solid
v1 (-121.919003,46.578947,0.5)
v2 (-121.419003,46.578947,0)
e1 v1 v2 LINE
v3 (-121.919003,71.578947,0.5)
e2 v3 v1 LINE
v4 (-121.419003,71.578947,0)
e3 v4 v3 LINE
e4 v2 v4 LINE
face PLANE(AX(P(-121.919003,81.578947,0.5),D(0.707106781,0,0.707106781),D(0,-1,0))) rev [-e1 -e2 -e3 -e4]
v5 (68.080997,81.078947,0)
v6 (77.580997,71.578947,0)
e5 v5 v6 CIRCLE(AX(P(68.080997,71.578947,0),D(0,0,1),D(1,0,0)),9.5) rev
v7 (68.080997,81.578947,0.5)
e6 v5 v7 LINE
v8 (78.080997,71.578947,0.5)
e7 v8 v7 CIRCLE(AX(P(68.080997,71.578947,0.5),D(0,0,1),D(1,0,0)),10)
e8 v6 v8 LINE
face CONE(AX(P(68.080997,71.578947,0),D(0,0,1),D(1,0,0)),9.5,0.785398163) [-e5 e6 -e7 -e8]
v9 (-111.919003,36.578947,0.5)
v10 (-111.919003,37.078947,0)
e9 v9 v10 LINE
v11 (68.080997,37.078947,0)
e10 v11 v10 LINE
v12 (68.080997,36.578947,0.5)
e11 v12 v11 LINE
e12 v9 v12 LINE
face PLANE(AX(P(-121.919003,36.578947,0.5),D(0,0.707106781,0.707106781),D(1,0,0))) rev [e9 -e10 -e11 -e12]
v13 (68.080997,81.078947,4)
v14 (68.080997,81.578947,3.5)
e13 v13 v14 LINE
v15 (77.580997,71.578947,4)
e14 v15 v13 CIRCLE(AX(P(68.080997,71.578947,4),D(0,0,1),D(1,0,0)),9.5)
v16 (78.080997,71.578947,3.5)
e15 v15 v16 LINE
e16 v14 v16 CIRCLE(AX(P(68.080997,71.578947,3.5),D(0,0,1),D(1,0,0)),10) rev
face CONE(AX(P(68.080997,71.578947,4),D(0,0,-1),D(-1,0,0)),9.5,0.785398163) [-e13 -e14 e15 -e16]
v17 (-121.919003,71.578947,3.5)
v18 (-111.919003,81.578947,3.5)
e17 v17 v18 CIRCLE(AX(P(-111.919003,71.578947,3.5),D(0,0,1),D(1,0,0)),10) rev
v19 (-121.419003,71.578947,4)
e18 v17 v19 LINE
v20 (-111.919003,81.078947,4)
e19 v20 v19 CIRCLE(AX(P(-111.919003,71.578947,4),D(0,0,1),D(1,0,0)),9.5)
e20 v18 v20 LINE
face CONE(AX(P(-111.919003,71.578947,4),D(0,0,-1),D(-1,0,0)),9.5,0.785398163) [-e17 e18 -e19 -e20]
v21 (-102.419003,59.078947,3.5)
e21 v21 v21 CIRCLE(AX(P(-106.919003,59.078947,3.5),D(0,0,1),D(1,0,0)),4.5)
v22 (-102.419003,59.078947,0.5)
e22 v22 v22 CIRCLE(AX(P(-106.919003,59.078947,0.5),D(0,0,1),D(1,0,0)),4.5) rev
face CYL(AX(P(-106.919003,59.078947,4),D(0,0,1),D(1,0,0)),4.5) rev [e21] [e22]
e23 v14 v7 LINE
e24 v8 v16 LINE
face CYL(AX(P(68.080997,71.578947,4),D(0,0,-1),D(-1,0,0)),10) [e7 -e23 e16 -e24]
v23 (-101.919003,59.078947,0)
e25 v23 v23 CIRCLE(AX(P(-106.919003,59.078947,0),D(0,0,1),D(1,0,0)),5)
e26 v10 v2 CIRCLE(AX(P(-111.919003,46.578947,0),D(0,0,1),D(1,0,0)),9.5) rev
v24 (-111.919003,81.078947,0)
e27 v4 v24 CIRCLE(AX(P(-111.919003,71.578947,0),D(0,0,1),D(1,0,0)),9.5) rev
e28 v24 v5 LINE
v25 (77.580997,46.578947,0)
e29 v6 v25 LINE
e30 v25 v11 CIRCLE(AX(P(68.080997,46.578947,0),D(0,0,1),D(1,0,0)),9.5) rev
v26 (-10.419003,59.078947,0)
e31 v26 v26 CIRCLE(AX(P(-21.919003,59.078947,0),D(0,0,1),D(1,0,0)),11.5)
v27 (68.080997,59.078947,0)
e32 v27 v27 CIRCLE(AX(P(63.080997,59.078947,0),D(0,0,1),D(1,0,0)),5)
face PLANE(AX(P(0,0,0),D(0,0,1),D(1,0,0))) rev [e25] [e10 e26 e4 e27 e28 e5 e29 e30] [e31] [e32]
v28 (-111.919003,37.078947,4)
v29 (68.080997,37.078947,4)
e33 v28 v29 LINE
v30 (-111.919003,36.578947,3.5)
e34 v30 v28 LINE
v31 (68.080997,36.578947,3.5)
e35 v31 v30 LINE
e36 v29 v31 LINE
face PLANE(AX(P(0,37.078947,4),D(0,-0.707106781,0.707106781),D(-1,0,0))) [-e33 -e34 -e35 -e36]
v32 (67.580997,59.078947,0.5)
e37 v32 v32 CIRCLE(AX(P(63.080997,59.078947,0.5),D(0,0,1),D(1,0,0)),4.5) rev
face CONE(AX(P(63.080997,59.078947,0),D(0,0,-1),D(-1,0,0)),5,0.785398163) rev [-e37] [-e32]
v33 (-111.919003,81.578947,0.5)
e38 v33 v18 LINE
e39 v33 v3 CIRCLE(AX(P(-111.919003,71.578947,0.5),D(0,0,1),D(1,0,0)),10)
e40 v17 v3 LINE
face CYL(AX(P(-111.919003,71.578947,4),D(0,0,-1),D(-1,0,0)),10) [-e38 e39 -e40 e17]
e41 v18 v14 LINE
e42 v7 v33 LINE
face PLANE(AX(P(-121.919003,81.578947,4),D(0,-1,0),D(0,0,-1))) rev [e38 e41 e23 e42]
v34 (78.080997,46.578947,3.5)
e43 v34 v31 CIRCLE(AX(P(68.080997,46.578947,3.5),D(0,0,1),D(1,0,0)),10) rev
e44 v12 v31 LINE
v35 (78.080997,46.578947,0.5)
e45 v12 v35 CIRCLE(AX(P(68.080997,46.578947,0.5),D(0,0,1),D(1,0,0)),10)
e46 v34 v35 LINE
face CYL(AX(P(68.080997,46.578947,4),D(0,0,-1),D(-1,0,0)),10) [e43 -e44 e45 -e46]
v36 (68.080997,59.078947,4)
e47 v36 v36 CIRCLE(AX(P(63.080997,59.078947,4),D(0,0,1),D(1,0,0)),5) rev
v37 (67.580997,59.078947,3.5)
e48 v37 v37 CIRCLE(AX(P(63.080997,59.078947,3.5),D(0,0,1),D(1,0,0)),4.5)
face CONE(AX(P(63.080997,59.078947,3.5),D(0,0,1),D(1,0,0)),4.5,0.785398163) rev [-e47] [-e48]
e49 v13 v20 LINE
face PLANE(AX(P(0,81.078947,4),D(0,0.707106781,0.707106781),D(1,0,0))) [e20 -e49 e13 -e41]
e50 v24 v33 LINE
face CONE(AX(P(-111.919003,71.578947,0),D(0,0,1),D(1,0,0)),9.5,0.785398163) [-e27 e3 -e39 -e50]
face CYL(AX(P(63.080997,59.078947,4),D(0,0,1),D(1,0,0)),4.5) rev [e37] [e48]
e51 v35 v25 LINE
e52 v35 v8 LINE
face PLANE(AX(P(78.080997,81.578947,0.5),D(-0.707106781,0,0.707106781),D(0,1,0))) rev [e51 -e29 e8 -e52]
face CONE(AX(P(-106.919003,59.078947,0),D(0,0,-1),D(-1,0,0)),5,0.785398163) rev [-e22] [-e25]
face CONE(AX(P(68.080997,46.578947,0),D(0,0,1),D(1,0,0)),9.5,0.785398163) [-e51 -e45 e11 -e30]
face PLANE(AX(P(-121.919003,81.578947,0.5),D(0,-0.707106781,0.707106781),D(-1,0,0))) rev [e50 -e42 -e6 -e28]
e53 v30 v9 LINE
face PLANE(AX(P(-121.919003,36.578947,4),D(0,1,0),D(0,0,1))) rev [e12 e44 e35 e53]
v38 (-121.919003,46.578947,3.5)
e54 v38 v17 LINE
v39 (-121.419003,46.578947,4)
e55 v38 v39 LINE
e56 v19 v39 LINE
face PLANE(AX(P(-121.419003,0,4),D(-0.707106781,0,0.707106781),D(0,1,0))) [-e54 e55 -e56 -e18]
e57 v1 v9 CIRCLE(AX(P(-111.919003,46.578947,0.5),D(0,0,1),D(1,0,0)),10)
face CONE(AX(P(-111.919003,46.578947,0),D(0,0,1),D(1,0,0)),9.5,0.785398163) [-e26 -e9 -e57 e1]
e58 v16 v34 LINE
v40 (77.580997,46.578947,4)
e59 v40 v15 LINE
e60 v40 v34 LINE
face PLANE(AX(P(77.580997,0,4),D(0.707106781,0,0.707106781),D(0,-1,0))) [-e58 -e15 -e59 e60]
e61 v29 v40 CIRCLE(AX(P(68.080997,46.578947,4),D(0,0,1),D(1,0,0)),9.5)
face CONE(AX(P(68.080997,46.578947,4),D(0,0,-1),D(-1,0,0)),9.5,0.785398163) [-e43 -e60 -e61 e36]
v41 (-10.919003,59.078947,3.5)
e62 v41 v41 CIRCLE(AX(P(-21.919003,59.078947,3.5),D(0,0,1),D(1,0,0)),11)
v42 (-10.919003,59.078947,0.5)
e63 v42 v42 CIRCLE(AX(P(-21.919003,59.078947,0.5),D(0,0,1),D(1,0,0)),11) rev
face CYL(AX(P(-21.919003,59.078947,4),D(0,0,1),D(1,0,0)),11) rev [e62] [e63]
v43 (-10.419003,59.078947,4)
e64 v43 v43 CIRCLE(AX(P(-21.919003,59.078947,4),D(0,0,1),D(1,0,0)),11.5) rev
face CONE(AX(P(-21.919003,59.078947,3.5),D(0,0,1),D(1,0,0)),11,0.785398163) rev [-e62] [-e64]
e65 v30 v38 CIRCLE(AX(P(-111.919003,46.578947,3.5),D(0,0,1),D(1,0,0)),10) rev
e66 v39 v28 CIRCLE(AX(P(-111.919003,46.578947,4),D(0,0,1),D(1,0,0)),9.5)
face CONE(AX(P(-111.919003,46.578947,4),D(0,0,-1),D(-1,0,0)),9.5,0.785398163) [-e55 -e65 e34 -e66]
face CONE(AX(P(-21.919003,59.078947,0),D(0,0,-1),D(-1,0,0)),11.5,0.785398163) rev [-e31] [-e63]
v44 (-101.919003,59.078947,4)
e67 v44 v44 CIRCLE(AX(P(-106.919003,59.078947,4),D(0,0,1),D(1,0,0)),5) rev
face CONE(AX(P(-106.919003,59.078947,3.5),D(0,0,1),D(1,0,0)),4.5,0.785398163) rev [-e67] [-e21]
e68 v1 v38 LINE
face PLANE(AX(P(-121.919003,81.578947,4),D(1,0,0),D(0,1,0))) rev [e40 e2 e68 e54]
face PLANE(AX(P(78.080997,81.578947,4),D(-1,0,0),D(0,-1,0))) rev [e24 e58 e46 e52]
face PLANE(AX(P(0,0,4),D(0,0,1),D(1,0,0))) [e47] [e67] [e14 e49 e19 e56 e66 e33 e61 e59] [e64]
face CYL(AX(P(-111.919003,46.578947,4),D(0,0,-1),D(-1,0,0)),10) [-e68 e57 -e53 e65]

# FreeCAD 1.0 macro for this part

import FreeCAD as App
import Part
import Sketcher


def edges_at(feature, points):
    """Names of the edges that pass closest to the given points."""
    edges = feature.Shape.Edges
    near = lambda p: min(range(len(edges)), key=lambda i: edges[i].distToShape(Part.Vertex(*p))[0])
    return sorted({f"Edge{near(p) + 1}" for p in points})

doc = App.newDocument("Part")
body = doc.addObject("PartDesign::Body", "Body")

# Sketch on XY plane
sketch1 = body.newObject("Sketcher::SketchObject", "Sketch")
sketch1.AttachmentSupport = (doc.getObject("XY_Plane"), [""])
sketch1.MapMode = "FlatFace"
sketch1.addGeometry(Part.LineSegment(App.Vector(-122, 82, 0), App.Vector(-122, 37, 0)), False)
sketch1.addGeometry(Part.LineSegment(App.Vector(-122, 37, 0), App.Vector(78, 37, 0)), False)
sketch1.addGeometry(Part.LineSegment(App.Vector(78, 37, 0), App.Vector(78, 82, 0)), False)
sketch1.addGeometry(Part.LineSegment(App.Vector(78, 82, 0), App.Vector(-122, 82, 0)), False)
sketch1.addConstraint(Sketcher.Constraint("Coincident", 0, 2, 1, 1))
sketch1.addConstraint(Sketcher.Constraint("Coincident", 1, 2, 2, 1))
sketch1.addConstraint(Sketcher.Constraint("Coincident", 2, 2, 3, 1))
sketch1.addConstraint(Sketcher.Constraint("Coincident", 3, 2, 0, 1))
sketch1.addConstraint(Sketcher.Constraint("Vertical", 0))
sketch1.addConstraint(Sketcher.Constraint("Horizontal", 1))
sketch1.addConstraint(Sketcher.Constraint("Vertical", 2))
sketch1.addConstraint(Sketcher.Constraint("Horizontal", 3))
sketch1.addConstraint(Sketcher.Constraint("DistanceX", 1, 1, 1, 2, 200.0))
sketch1.addConstraint(Sketcher.Constraint("DistanceY", 0, 2, 0, 1, 45.0))
sketch1.addConstraint(Sketcher.Constraint("DistanceX", 0, 2, -1, 1, 121.919003))
sketch1.addConstraint(Sketcher.Constraint("DistanceY", -1, 1, 0, 2, 36.578947))
pad1 = body.newObject("PartDesign::Pad", "Pad")
pad1.Profile = sketch1
pad1.Length = 4
doc.recompute()

fillet = body.newObject("PartDesign::Fillet", "Fillet")
fillet.Base = (pad1, edges_at(pad1, [
    (-121.919, 81.579, 2),
    (78.081, 81.579, 2),
    (78.081, 36.579, 2),
    (-121.919, 36.579, 2),
]))
fillet.Radius = 10

# Sketch on XY plane
sketch2 = body.newObject("Sketcher::SketchObject", "Sketch001")
sketch2.AttachmentSupport = (doc.getObject("XY_Plane"), [""])
sketch2.MapMode = "FlatFace"
sketch2.AttachmentOffset = App.Placement(App.Vector(0, 0, 4), App.Rotation())
sketch2.addGeometry(Part.Circle(App.Vector(-106.9, 59.1, 0), App.Vector(0, 0, 1), 4.5), False)
sketch2.addGeometry(Part.Circle(App.Vector(63.1, 59.1, 0), App.Vector(0, 0, 1), 4.5), False)
sketch2.addConstraint(Sketcher.Constraint("Equal", 0, 1))
sketch2.addConstraint(Sketcher.Constraint("Horizontal", 0, 3, 1, 3))
sketch2.addConstraint(Sketcher.Constraint("Diameter", 0, 9.0))
sketch2.addConstraint(Sketcher.Constraint("DistanceX", 0, 3, 1, 3, 170.0))
sketch2.addConstraint(Sketcher.Constraint("DistanceX", 0, 3, -1, 1, 106.919003))
sketch2.addConstraint(Sketcher.Constraint("DistanceY", -1, 1, 0, 3, 59.078947))
doc.recompute()
hole = body.newObject("PartDesign::Hole", "Hole")
hole.Profile = sketch2
hole.ThreadType = "None"
hole.Diameter = 9
hole.DepthType = "ThroughAll"

# Sketch on XY plane
sketch3 = body.newObject("Sketcher::SketchObject", "Sketch002")
sketch3.AttachmentSupport = (doc.getObject("XY_Plane"), [""])
sketch3.MapMode = "FlatFace"
sketch3.AttachmentOffset = App.Placement(App.Vector(0, 0, 4), App.Rotation())
sketch3.addGeometry(Part.Circle(App.Vector(-22, 59, 0), App.Vector(0, 0, 1), 11), False)
sketch3.addConstraint(Sketcher.Constraint("Diameter", 0, 22.0))
sketch3.addConstraint(Sketcher.Constraint("DistanceX", 0, 3, -1, 1, 21.919003))
sketch3.addConstraint(Sketcher.Constraint("DistanceY", -1, 1, 0, 3, 59.078947))
doc.recompute()
hole2 = body.newObject("PartDesign::Hole", "Hole001")
hole2.Profile = sketch3
hole2.ThreadType = "None"
hole2.Diameter = 22
hole2.DepthType = "ThroughAll"
doc.recompute()

chamfer = body.newObject("PartDesign::Chamfer", "Chamfer")
chamfer.Base = (hole2, edges_at(hole2, [
    (-121.919, 59.079, 0),
    (-121.919, 59.079, 4),
    (-21.919, 81.579, 0),
    (78.081, 59.079, 0),
    (-21.919, 36.579, 0),
    (75.152, 78.65, 0),
    (75.152, 39.508, 0),
    (-118.99, 39.508, 0),
    (-118.99, 78.65, 0),
    (-21.919, 81.579, 4),
    (-21.919, 36.579, 4),
    (78.081, 59.079, 4),
    (75.152, 78.65, 4),
    (75.152, 39.508, 4),
    (-118.99, 39.508, 4),
    (-118.99, 78.65, 4),
]))
chamfer.Size = 0.5
doc.recompute()

chamfer2 = body.newObject("PartDesign::Chamfer", "Chamfer001")
chamfer2.Base = (chamfer, edges_at(chamfer, [
    (67.581, 59.079, 4),
    (67.581, 59.079, 0),
    (-102.419, 59.079, 4),
    (-102.419, 59.079, 0),
    (-10.919, 59.079, 4),
    (-10.919, 59.079, 0),
]))
chamfer2.Size = 0.5

doc.recompute()
